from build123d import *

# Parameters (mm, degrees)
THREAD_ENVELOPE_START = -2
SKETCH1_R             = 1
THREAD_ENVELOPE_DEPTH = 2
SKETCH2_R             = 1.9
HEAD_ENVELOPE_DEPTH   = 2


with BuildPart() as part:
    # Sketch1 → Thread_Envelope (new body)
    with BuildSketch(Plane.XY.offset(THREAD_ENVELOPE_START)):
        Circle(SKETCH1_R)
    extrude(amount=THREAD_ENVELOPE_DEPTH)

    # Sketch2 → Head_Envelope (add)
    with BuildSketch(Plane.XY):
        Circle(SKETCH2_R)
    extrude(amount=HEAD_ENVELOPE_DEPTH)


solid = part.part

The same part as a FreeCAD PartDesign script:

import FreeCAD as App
import Part
import Sketcher
from FreeCAD import Vector
Q = App.Units.Quantity

doc = App.newDocument("Part")
body = doc.addObject("PartDesign::Body", "Body")

sketch1 = doc.addObject("Sketcher::SketchObject", "Sketch")
body.addObject(sketch1)
sketch1.AttachmentSupport = (doc.XY_Plane, [""])
sketch1.MapMode = "FlatFace"
sketch1.AttachmentOffset = App.Placement(Vector(0, 0, -2), App.Rotation())
sketch1.addGeometry(Part.Circle(Vector(0, 0, 0), Vector(0, 0, 1), 1), False)
sketch1.addConstraint([
    Sketcher.Constraint("Coincident", 0, 3, -1, 1),
    Sketcher.Constraint("Diameter", 0, Q("2 mm")),
])
pad1 = doc.addObject("PartDesign::Pad", "Pad")
body.addObject(pad1)
pad1.Profile = sketch1
pad1.Length = 2

sketch2 = doc.addObject("Sketcher::SketchObject", "Sketch001")
body.addObject(sketch2)
sketch2.AttachmentSupport = (doc.XY_Plane, [""])
sketch2.MapMode = "FlatFace"
sketch2.addGeometry(Part.Circle(Vector(0, 0, 0), Vector(0, 0, 1), 1.9), False)
sketch2.addConstraint([
    Sketcher.Constraint("Coincident", 0, 3, -1, 1),
    Sketcher.Constraint("Diameter", 0, Q("3.8 mm")),
])
pad2 = doc.addObject("PartDesign::Pad", "Pad001")
body.addObject(pad2)
pad2.Profile = sketch2
pad2.Length = 2

doc.recompute()
